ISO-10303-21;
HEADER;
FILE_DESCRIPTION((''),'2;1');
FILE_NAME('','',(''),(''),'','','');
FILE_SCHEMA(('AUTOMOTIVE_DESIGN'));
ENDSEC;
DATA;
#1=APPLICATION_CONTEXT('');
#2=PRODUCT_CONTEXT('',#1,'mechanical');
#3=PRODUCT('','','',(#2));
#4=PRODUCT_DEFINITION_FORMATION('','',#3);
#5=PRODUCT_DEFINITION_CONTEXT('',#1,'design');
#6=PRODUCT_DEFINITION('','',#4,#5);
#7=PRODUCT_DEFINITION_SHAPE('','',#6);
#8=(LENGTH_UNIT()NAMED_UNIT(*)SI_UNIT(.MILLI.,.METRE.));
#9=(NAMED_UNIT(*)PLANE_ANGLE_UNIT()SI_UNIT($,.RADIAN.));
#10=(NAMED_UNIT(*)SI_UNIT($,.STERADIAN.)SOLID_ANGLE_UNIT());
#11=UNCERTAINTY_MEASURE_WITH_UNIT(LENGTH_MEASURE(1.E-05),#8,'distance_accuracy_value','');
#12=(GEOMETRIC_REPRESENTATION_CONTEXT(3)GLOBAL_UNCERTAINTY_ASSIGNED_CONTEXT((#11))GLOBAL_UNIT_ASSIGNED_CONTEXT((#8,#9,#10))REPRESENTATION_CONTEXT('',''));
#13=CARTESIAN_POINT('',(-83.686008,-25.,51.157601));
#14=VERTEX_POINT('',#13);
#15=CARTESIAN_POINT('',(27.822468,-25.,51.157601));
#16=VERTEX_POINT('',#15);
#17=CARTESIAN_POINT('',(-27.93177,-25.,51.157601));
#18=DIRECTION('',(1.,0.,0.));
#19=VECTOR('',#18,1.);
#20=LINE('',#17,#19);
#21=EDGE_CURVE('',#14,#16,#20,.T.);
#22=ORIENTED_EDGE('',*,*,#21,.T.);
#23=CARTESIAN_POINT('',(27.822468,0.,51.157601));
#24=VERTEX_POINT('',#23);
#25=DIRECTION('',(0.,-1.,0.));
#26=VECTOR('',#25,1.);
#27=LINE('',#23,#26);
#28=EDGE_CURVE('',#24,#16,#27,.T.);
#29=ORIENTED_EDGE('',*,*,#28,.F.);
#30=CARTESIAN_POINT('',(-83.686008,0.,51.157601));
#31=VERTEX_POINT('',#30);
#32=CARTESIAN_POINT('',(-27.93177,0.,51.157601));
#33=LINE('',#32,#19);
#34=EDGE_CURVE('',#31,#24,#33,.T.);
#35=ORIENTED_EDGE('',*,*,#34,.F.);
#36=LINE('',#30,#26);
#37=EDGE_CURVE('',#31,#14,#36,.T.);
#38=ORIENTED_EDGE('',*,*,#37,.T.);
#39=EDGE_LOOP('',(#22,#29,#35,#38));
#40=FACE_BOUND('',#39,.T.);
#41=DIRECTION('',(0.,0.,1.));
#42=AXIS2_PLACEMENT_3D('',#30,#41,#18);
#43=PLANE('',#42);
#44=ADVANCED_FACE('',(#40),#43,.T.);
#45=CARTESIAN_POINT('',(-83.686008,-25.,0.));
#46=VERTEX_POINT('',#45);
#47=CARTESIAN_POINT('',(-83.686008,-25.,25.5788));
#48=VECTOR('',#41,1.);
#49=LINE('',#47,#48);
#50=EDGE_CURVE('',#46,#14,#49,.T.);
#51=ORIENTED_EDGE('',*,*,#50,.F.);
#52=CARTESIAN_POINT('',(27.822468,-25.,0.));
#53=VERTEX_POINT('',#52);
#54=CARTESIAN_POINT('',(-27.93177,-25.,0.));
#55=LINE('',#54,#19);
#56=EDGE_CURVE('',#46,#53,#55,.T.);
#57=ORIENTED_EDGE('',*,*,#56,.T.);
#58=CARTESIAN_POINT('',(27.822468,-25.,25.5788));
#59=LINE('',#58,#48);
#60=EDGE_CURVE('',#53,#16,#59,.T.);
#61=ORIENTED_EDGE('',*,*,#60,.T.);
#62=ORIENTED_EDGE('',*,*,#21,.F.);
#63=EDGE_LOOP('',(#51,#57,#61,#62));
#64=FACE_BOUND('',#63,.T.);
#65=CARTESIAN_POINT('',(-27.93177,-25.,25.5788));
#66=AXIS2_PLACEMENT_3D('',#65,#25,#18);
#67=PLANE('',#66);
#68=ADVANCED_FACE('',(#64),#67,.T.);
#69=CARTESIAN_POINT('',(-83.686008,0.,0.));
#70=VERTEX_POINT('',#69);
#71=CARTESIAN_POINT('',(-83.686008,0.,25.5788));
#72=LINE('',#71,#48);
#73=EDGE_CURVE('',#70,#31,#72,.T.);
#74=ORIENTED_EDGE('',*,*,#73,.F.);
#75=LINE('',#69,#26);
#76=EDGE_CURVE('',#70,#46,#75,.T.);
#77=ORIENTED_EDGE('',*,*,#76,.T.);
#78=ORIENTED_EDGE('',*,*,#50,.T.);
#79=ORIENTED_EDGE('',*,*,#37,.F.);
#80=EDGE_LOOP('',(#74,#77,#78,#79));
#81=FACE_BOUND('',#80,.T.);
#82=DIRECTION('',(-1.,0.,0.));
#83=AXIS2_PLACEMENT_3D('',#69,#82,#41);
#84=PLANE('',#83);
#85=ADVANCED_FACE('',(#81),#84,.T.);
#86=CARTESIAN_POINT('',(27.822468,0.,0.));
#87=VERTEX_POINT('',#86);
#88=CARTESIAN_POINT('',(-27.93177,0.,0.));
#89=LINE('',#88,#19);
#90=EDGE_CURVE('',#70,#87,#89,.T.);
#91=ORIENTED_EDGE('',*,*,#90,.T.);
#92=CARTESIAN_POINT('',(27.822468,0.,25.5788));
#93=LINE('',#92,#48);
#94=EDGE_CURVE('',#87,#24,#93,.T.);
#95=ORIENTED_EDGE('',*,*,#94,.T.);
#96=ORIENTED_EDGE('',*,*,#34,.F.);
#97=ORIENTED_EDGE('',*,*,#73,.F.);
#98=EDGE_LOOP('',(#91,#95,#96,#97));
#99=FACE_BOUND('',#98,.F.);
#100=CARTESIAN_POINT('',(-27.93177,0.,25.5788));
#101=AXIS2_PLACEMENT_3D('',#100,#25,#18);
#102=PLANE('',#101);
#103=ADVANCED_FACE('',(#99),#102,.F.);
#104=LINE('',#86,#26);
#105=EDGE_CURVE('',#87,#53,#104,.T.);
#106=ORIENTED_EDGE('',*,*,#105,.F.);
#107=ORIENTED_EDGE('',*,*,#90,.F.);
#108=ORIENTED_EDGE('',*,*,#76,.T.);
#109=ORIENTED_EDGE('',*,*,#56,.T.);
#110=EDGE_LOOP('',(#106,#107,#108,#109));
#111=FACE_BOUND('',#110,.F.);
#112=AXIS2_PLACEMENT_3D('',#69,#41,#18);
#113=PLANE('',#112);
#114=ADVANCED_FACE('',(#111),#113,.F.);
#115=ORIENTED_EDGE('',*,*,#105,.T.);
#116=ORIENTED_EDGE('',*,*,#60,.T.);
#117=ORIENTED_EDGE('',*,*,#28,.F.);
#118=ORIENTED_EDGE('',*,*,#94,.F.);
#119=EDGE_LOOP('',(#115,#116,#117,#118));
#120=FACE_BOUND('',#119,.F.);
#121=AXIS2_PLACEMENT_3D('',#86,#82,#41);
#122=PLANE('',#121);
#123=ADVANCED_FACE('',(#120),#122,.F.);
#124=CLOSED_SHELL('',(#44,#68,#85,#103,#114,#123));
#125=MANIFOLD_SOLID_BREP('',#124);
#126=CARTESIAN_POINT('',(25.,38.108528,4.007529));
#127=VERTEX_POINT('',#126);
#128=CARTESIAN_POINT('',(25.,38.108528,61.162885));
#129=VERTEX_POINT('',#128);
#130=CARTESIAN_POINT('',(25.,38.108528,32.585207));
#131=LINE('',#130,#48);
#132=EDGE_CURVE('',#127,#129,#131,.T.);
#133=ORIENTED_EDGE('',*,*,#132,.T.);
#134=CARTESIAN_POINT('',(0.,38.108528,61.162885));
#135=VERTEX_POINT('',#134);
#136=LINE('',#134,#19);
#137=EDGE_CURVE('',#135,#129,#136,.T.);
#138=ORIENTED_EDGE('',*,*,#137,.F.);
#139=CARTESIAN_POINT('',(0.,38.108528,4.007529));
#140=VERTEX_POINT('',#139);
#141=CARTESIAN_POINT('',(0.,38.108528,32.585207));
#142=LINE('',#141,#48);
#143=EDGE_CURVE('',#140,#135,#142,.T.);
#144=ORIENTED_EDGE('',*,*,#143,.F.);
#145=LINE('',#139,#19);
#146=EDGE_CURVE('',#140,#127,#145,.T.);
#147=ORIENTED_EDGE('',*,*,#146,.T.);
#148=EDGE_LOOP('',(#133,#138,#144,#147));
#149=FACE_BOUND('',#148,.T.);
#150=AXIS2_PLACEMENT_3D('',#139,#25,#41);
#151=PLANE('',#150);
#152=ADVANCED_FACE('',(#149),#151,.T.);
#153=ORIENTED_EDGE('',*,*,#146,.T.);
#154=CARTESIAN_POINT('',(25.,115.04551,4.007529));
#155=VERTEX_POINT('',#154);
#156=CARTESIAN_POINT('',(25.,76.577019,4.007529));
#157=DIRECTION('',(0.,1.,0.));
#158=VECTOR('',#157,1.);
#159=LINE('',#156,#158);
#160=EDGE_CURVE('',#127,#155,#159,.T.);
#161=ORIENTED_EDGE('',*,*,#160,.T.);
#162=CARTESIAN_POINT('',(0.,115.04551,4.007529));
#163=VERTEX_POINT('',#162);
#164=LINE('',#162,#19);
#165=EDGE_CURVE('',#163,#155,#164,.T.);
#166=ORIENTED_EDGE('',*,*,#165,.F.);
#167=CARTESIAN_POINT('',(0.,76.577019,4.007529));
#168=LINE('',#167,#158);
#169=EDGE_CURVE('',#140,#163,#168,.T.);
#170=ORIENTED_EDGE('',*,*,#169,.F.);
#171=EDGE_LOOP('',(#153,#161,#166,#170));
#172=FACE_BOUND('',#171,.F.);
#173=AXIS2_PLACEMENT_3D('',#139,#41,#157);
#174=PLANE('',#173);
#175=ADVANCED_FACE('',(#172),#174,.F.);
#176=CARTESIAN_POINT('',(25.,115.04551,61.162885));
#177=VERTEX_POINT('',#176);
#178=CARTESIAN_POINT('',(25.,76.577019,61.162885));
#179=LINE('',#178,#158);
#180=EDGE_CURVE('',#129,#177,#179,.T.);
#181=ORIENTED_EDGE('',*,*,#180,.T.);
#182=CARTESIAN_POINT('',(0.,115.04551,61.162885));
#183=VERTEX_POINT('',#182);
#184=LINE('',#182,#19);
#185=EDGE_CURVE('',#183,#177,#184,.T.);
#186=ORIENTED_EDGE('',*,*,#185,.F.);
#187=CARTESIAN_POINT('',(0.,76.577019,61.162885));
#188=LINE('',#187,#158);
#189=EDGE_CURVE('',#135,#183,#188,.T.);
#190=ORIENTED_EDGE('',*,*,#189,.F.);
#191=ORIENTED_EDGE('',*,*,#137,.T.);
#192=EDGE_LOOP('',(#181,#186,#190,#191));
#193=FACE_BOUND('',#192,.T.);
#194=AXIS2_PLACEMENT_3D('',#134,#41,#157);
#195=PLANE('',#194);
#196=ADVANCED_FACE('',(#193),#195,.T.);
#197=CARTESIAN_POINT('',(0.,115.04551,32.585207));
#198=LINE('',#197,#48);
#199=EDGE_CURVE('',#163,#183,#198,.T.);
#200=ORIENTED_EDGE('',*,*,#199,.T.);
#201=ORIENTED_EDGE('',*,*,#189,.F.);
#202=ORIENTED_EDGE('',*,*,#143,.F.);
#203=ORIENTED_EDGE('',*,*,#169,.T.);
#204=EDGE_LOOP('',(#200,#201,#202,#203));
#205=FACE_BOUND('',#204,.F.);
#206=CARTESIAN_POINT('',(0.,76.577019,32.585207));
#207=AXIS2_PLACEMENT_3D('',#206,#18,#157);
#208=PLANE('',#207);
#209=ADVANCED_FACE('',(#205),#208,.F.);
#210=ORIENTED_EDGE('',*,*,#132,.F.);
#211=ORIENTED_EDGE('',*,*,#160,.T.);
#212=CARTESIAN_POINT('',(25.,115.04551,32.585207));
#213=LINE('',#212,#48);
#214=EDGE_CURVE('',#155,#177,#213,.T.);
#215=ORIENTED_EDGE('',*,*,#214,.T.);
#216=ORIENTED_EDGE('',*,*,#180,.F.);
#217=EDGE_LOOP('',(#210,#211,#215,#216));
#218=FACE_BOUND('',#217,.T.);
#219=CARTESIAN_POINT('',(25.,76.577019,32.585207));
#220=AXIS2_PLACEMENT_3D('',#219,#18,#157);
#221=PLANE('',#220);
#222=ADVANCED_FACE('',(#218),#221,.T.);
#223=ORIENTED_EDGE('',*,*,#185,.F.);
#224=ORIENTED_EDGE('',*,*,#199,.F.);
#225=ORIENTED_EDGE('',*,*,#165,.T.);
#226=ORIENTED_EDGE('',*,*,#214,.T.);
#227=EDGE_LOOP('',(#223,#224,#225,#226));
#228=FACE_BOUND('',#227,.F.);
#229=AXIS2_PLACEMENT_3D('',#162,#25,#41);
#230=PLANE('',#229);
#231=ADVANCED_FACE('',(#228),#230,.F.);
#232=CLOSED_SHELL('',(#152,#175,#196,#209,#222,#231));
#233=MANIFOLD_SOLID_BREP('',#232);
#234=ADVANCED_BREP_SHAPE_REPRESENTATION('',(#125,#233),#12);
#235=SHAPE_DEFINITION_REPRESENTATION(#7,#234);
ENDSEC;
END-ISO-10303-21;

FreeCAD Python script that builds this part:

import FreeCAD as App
import Part
import Sketcher

V = App.Vector

doc = App.newDocument("Part")
body = doc.addObject("PartDesign::Body", "Body")

sketch1 = doc.addObject("Sketcher::SketchObject", "Sketch")
body.addObject(sketch1)
sketch1.AttachmentSupport = (doc.XZ_Plane, [""])
sketch1.MapMode = "FlatFace"
sketch1.addGeometry(Part.LineSegment(V(-83.686008, 51.157601, 0), V(-83.686008, 0, 0)), False)
sketch1.addGeometry(Part.LineSegment(V(-83.686008, 0, 0), V(27.822468, 0, 0)), False)
sketch1.addGeometry(Part.LineSegment(V(27.822468, 0, 0), V(27.822468, 51.157601, 0)), False)
sketch1.addGeometry(Part.LineSegment(V(27.822468, 51.157601, 0), V(-83.686008, 51.157601, 0)), False)
sketch1.addConstraint(Sketcher.Constraint("Coincident", 0, 2, 1, 1))
sketch1.addConstraint(Sketcher.Constraint("Coincident", 1, 2, 2, 1))
sketch1.addConstraint(Sketcher.Constraint("Coincident", 2, 2, 3, 1))
sketch1.addConstraint(Sketcher.Constraint("Coincident", 3, 2, 0, 1))
sketch1.addConstraint(Sketcher.Constraint("Vertical", 0))
sketch1.addConstraint(Sketcher.Constraint("Horizontal", 1))
sketch1.addConstraint(Sketcher.Constraint("Vertical", 2))
sketch1.addConstraint(Sketcher.Constraint("Horizontal", 3))
sketch1.addConstraint(Sketcher.Constraint("PointOnObject", 0, 2, -1))
sketch1.addConstraint(Sketcher.Constraint("DistanceY", 0, 2, 0, 1, 51.157601))
sketch1.addConstraint(Sketcher.Constraint("DistanceX", 1, 1, 1, 2, 111.508477))
sketch1.addConstraint(Sketcher.Constraint("DistanceX", 0, 2, -1, 1, 83.686008))
pad1 = doc.addObject("PartDesign::Pad", "Pad")
body.addObject(pad1)
pad1.Profile = sketch1
pad1.Length = 25
body2 = doc.addObject("PartDesign::Body", "Body001")

sketch2 = doc.addObject("Sketcher::SketchObject", "Sketch001")
body2.addObject(sketch2)
sketch2.AttachmentSupport = (doc.getObject("YZ_Plane001"), [""])
sketch2.MapMode = "FlatFace"
sketch2.addGeometry(Part.LineSegment(V(38.108528, 61.162885, 0), V(38.108528, 4.007529, 0)), False)
sketch2.addGeometry(Part.LineSegment(V(38.108528, 4.007529, 0), V(115.04551, 4.007529, 0)), False)
sketch2.addGeometry(Part.LineSegment(V(115.04551, 4.007529, 0), V(115.04551, 61.162885, 0)), False)
sketch2.addGeometry(Part.LineSegment(V(115.04551, 61.162885, 0), V(38.108528, 61.162885, 0)), False)
sketch2.addConstraint(Sketcher.Constraint("Coincident", 0, 2, 1, 1))
sketch2.addConstraint(Sketcher.Constraint("Coincident", 1, 2, 2, 1))
sketch2.addConstraint(Sketcher.Constraint("Coincident", 2, 2, 3, 1))
sketch2.addConstraint(Sketcher.Constraint("Coincident", 3, 2, 0, 1))
sketch2.addConstraint(Sketcher.Constraint("Vertical", 0))
sketch2.addConstraint(Sketcher.Constraint("Horizontal", 1))
sketch2.addConstraint(Sketcher.Constraint("Vertical", 2))
sketch2.addConstraint(Sketcher.Constraint("Horizontal", 3))
sketch2.addConstraint(Sketcher.Constraint("DistanceX", 1, 1, 1, 2, 76.936982))
sketch2.addConstraint(Sketcher.Constraint("DistanceY", 0, 2, 0, 1, 57.155356))
sketch2.addConstraint(Sketcher.Constraint("DistanceY", -1, 1, 0, 2, 4.007529))
sketch2.addConstraint(Sketcher.Constraint("DistanceX", -1, 1, 1, 2, 115.04551))
pad2 = doc.addObject("PartDesign::Pad", "Pad001")
body2.addObject(pad2)
pad2.Profile = sketch2
pad2.Length = 25

doc.recompute()
